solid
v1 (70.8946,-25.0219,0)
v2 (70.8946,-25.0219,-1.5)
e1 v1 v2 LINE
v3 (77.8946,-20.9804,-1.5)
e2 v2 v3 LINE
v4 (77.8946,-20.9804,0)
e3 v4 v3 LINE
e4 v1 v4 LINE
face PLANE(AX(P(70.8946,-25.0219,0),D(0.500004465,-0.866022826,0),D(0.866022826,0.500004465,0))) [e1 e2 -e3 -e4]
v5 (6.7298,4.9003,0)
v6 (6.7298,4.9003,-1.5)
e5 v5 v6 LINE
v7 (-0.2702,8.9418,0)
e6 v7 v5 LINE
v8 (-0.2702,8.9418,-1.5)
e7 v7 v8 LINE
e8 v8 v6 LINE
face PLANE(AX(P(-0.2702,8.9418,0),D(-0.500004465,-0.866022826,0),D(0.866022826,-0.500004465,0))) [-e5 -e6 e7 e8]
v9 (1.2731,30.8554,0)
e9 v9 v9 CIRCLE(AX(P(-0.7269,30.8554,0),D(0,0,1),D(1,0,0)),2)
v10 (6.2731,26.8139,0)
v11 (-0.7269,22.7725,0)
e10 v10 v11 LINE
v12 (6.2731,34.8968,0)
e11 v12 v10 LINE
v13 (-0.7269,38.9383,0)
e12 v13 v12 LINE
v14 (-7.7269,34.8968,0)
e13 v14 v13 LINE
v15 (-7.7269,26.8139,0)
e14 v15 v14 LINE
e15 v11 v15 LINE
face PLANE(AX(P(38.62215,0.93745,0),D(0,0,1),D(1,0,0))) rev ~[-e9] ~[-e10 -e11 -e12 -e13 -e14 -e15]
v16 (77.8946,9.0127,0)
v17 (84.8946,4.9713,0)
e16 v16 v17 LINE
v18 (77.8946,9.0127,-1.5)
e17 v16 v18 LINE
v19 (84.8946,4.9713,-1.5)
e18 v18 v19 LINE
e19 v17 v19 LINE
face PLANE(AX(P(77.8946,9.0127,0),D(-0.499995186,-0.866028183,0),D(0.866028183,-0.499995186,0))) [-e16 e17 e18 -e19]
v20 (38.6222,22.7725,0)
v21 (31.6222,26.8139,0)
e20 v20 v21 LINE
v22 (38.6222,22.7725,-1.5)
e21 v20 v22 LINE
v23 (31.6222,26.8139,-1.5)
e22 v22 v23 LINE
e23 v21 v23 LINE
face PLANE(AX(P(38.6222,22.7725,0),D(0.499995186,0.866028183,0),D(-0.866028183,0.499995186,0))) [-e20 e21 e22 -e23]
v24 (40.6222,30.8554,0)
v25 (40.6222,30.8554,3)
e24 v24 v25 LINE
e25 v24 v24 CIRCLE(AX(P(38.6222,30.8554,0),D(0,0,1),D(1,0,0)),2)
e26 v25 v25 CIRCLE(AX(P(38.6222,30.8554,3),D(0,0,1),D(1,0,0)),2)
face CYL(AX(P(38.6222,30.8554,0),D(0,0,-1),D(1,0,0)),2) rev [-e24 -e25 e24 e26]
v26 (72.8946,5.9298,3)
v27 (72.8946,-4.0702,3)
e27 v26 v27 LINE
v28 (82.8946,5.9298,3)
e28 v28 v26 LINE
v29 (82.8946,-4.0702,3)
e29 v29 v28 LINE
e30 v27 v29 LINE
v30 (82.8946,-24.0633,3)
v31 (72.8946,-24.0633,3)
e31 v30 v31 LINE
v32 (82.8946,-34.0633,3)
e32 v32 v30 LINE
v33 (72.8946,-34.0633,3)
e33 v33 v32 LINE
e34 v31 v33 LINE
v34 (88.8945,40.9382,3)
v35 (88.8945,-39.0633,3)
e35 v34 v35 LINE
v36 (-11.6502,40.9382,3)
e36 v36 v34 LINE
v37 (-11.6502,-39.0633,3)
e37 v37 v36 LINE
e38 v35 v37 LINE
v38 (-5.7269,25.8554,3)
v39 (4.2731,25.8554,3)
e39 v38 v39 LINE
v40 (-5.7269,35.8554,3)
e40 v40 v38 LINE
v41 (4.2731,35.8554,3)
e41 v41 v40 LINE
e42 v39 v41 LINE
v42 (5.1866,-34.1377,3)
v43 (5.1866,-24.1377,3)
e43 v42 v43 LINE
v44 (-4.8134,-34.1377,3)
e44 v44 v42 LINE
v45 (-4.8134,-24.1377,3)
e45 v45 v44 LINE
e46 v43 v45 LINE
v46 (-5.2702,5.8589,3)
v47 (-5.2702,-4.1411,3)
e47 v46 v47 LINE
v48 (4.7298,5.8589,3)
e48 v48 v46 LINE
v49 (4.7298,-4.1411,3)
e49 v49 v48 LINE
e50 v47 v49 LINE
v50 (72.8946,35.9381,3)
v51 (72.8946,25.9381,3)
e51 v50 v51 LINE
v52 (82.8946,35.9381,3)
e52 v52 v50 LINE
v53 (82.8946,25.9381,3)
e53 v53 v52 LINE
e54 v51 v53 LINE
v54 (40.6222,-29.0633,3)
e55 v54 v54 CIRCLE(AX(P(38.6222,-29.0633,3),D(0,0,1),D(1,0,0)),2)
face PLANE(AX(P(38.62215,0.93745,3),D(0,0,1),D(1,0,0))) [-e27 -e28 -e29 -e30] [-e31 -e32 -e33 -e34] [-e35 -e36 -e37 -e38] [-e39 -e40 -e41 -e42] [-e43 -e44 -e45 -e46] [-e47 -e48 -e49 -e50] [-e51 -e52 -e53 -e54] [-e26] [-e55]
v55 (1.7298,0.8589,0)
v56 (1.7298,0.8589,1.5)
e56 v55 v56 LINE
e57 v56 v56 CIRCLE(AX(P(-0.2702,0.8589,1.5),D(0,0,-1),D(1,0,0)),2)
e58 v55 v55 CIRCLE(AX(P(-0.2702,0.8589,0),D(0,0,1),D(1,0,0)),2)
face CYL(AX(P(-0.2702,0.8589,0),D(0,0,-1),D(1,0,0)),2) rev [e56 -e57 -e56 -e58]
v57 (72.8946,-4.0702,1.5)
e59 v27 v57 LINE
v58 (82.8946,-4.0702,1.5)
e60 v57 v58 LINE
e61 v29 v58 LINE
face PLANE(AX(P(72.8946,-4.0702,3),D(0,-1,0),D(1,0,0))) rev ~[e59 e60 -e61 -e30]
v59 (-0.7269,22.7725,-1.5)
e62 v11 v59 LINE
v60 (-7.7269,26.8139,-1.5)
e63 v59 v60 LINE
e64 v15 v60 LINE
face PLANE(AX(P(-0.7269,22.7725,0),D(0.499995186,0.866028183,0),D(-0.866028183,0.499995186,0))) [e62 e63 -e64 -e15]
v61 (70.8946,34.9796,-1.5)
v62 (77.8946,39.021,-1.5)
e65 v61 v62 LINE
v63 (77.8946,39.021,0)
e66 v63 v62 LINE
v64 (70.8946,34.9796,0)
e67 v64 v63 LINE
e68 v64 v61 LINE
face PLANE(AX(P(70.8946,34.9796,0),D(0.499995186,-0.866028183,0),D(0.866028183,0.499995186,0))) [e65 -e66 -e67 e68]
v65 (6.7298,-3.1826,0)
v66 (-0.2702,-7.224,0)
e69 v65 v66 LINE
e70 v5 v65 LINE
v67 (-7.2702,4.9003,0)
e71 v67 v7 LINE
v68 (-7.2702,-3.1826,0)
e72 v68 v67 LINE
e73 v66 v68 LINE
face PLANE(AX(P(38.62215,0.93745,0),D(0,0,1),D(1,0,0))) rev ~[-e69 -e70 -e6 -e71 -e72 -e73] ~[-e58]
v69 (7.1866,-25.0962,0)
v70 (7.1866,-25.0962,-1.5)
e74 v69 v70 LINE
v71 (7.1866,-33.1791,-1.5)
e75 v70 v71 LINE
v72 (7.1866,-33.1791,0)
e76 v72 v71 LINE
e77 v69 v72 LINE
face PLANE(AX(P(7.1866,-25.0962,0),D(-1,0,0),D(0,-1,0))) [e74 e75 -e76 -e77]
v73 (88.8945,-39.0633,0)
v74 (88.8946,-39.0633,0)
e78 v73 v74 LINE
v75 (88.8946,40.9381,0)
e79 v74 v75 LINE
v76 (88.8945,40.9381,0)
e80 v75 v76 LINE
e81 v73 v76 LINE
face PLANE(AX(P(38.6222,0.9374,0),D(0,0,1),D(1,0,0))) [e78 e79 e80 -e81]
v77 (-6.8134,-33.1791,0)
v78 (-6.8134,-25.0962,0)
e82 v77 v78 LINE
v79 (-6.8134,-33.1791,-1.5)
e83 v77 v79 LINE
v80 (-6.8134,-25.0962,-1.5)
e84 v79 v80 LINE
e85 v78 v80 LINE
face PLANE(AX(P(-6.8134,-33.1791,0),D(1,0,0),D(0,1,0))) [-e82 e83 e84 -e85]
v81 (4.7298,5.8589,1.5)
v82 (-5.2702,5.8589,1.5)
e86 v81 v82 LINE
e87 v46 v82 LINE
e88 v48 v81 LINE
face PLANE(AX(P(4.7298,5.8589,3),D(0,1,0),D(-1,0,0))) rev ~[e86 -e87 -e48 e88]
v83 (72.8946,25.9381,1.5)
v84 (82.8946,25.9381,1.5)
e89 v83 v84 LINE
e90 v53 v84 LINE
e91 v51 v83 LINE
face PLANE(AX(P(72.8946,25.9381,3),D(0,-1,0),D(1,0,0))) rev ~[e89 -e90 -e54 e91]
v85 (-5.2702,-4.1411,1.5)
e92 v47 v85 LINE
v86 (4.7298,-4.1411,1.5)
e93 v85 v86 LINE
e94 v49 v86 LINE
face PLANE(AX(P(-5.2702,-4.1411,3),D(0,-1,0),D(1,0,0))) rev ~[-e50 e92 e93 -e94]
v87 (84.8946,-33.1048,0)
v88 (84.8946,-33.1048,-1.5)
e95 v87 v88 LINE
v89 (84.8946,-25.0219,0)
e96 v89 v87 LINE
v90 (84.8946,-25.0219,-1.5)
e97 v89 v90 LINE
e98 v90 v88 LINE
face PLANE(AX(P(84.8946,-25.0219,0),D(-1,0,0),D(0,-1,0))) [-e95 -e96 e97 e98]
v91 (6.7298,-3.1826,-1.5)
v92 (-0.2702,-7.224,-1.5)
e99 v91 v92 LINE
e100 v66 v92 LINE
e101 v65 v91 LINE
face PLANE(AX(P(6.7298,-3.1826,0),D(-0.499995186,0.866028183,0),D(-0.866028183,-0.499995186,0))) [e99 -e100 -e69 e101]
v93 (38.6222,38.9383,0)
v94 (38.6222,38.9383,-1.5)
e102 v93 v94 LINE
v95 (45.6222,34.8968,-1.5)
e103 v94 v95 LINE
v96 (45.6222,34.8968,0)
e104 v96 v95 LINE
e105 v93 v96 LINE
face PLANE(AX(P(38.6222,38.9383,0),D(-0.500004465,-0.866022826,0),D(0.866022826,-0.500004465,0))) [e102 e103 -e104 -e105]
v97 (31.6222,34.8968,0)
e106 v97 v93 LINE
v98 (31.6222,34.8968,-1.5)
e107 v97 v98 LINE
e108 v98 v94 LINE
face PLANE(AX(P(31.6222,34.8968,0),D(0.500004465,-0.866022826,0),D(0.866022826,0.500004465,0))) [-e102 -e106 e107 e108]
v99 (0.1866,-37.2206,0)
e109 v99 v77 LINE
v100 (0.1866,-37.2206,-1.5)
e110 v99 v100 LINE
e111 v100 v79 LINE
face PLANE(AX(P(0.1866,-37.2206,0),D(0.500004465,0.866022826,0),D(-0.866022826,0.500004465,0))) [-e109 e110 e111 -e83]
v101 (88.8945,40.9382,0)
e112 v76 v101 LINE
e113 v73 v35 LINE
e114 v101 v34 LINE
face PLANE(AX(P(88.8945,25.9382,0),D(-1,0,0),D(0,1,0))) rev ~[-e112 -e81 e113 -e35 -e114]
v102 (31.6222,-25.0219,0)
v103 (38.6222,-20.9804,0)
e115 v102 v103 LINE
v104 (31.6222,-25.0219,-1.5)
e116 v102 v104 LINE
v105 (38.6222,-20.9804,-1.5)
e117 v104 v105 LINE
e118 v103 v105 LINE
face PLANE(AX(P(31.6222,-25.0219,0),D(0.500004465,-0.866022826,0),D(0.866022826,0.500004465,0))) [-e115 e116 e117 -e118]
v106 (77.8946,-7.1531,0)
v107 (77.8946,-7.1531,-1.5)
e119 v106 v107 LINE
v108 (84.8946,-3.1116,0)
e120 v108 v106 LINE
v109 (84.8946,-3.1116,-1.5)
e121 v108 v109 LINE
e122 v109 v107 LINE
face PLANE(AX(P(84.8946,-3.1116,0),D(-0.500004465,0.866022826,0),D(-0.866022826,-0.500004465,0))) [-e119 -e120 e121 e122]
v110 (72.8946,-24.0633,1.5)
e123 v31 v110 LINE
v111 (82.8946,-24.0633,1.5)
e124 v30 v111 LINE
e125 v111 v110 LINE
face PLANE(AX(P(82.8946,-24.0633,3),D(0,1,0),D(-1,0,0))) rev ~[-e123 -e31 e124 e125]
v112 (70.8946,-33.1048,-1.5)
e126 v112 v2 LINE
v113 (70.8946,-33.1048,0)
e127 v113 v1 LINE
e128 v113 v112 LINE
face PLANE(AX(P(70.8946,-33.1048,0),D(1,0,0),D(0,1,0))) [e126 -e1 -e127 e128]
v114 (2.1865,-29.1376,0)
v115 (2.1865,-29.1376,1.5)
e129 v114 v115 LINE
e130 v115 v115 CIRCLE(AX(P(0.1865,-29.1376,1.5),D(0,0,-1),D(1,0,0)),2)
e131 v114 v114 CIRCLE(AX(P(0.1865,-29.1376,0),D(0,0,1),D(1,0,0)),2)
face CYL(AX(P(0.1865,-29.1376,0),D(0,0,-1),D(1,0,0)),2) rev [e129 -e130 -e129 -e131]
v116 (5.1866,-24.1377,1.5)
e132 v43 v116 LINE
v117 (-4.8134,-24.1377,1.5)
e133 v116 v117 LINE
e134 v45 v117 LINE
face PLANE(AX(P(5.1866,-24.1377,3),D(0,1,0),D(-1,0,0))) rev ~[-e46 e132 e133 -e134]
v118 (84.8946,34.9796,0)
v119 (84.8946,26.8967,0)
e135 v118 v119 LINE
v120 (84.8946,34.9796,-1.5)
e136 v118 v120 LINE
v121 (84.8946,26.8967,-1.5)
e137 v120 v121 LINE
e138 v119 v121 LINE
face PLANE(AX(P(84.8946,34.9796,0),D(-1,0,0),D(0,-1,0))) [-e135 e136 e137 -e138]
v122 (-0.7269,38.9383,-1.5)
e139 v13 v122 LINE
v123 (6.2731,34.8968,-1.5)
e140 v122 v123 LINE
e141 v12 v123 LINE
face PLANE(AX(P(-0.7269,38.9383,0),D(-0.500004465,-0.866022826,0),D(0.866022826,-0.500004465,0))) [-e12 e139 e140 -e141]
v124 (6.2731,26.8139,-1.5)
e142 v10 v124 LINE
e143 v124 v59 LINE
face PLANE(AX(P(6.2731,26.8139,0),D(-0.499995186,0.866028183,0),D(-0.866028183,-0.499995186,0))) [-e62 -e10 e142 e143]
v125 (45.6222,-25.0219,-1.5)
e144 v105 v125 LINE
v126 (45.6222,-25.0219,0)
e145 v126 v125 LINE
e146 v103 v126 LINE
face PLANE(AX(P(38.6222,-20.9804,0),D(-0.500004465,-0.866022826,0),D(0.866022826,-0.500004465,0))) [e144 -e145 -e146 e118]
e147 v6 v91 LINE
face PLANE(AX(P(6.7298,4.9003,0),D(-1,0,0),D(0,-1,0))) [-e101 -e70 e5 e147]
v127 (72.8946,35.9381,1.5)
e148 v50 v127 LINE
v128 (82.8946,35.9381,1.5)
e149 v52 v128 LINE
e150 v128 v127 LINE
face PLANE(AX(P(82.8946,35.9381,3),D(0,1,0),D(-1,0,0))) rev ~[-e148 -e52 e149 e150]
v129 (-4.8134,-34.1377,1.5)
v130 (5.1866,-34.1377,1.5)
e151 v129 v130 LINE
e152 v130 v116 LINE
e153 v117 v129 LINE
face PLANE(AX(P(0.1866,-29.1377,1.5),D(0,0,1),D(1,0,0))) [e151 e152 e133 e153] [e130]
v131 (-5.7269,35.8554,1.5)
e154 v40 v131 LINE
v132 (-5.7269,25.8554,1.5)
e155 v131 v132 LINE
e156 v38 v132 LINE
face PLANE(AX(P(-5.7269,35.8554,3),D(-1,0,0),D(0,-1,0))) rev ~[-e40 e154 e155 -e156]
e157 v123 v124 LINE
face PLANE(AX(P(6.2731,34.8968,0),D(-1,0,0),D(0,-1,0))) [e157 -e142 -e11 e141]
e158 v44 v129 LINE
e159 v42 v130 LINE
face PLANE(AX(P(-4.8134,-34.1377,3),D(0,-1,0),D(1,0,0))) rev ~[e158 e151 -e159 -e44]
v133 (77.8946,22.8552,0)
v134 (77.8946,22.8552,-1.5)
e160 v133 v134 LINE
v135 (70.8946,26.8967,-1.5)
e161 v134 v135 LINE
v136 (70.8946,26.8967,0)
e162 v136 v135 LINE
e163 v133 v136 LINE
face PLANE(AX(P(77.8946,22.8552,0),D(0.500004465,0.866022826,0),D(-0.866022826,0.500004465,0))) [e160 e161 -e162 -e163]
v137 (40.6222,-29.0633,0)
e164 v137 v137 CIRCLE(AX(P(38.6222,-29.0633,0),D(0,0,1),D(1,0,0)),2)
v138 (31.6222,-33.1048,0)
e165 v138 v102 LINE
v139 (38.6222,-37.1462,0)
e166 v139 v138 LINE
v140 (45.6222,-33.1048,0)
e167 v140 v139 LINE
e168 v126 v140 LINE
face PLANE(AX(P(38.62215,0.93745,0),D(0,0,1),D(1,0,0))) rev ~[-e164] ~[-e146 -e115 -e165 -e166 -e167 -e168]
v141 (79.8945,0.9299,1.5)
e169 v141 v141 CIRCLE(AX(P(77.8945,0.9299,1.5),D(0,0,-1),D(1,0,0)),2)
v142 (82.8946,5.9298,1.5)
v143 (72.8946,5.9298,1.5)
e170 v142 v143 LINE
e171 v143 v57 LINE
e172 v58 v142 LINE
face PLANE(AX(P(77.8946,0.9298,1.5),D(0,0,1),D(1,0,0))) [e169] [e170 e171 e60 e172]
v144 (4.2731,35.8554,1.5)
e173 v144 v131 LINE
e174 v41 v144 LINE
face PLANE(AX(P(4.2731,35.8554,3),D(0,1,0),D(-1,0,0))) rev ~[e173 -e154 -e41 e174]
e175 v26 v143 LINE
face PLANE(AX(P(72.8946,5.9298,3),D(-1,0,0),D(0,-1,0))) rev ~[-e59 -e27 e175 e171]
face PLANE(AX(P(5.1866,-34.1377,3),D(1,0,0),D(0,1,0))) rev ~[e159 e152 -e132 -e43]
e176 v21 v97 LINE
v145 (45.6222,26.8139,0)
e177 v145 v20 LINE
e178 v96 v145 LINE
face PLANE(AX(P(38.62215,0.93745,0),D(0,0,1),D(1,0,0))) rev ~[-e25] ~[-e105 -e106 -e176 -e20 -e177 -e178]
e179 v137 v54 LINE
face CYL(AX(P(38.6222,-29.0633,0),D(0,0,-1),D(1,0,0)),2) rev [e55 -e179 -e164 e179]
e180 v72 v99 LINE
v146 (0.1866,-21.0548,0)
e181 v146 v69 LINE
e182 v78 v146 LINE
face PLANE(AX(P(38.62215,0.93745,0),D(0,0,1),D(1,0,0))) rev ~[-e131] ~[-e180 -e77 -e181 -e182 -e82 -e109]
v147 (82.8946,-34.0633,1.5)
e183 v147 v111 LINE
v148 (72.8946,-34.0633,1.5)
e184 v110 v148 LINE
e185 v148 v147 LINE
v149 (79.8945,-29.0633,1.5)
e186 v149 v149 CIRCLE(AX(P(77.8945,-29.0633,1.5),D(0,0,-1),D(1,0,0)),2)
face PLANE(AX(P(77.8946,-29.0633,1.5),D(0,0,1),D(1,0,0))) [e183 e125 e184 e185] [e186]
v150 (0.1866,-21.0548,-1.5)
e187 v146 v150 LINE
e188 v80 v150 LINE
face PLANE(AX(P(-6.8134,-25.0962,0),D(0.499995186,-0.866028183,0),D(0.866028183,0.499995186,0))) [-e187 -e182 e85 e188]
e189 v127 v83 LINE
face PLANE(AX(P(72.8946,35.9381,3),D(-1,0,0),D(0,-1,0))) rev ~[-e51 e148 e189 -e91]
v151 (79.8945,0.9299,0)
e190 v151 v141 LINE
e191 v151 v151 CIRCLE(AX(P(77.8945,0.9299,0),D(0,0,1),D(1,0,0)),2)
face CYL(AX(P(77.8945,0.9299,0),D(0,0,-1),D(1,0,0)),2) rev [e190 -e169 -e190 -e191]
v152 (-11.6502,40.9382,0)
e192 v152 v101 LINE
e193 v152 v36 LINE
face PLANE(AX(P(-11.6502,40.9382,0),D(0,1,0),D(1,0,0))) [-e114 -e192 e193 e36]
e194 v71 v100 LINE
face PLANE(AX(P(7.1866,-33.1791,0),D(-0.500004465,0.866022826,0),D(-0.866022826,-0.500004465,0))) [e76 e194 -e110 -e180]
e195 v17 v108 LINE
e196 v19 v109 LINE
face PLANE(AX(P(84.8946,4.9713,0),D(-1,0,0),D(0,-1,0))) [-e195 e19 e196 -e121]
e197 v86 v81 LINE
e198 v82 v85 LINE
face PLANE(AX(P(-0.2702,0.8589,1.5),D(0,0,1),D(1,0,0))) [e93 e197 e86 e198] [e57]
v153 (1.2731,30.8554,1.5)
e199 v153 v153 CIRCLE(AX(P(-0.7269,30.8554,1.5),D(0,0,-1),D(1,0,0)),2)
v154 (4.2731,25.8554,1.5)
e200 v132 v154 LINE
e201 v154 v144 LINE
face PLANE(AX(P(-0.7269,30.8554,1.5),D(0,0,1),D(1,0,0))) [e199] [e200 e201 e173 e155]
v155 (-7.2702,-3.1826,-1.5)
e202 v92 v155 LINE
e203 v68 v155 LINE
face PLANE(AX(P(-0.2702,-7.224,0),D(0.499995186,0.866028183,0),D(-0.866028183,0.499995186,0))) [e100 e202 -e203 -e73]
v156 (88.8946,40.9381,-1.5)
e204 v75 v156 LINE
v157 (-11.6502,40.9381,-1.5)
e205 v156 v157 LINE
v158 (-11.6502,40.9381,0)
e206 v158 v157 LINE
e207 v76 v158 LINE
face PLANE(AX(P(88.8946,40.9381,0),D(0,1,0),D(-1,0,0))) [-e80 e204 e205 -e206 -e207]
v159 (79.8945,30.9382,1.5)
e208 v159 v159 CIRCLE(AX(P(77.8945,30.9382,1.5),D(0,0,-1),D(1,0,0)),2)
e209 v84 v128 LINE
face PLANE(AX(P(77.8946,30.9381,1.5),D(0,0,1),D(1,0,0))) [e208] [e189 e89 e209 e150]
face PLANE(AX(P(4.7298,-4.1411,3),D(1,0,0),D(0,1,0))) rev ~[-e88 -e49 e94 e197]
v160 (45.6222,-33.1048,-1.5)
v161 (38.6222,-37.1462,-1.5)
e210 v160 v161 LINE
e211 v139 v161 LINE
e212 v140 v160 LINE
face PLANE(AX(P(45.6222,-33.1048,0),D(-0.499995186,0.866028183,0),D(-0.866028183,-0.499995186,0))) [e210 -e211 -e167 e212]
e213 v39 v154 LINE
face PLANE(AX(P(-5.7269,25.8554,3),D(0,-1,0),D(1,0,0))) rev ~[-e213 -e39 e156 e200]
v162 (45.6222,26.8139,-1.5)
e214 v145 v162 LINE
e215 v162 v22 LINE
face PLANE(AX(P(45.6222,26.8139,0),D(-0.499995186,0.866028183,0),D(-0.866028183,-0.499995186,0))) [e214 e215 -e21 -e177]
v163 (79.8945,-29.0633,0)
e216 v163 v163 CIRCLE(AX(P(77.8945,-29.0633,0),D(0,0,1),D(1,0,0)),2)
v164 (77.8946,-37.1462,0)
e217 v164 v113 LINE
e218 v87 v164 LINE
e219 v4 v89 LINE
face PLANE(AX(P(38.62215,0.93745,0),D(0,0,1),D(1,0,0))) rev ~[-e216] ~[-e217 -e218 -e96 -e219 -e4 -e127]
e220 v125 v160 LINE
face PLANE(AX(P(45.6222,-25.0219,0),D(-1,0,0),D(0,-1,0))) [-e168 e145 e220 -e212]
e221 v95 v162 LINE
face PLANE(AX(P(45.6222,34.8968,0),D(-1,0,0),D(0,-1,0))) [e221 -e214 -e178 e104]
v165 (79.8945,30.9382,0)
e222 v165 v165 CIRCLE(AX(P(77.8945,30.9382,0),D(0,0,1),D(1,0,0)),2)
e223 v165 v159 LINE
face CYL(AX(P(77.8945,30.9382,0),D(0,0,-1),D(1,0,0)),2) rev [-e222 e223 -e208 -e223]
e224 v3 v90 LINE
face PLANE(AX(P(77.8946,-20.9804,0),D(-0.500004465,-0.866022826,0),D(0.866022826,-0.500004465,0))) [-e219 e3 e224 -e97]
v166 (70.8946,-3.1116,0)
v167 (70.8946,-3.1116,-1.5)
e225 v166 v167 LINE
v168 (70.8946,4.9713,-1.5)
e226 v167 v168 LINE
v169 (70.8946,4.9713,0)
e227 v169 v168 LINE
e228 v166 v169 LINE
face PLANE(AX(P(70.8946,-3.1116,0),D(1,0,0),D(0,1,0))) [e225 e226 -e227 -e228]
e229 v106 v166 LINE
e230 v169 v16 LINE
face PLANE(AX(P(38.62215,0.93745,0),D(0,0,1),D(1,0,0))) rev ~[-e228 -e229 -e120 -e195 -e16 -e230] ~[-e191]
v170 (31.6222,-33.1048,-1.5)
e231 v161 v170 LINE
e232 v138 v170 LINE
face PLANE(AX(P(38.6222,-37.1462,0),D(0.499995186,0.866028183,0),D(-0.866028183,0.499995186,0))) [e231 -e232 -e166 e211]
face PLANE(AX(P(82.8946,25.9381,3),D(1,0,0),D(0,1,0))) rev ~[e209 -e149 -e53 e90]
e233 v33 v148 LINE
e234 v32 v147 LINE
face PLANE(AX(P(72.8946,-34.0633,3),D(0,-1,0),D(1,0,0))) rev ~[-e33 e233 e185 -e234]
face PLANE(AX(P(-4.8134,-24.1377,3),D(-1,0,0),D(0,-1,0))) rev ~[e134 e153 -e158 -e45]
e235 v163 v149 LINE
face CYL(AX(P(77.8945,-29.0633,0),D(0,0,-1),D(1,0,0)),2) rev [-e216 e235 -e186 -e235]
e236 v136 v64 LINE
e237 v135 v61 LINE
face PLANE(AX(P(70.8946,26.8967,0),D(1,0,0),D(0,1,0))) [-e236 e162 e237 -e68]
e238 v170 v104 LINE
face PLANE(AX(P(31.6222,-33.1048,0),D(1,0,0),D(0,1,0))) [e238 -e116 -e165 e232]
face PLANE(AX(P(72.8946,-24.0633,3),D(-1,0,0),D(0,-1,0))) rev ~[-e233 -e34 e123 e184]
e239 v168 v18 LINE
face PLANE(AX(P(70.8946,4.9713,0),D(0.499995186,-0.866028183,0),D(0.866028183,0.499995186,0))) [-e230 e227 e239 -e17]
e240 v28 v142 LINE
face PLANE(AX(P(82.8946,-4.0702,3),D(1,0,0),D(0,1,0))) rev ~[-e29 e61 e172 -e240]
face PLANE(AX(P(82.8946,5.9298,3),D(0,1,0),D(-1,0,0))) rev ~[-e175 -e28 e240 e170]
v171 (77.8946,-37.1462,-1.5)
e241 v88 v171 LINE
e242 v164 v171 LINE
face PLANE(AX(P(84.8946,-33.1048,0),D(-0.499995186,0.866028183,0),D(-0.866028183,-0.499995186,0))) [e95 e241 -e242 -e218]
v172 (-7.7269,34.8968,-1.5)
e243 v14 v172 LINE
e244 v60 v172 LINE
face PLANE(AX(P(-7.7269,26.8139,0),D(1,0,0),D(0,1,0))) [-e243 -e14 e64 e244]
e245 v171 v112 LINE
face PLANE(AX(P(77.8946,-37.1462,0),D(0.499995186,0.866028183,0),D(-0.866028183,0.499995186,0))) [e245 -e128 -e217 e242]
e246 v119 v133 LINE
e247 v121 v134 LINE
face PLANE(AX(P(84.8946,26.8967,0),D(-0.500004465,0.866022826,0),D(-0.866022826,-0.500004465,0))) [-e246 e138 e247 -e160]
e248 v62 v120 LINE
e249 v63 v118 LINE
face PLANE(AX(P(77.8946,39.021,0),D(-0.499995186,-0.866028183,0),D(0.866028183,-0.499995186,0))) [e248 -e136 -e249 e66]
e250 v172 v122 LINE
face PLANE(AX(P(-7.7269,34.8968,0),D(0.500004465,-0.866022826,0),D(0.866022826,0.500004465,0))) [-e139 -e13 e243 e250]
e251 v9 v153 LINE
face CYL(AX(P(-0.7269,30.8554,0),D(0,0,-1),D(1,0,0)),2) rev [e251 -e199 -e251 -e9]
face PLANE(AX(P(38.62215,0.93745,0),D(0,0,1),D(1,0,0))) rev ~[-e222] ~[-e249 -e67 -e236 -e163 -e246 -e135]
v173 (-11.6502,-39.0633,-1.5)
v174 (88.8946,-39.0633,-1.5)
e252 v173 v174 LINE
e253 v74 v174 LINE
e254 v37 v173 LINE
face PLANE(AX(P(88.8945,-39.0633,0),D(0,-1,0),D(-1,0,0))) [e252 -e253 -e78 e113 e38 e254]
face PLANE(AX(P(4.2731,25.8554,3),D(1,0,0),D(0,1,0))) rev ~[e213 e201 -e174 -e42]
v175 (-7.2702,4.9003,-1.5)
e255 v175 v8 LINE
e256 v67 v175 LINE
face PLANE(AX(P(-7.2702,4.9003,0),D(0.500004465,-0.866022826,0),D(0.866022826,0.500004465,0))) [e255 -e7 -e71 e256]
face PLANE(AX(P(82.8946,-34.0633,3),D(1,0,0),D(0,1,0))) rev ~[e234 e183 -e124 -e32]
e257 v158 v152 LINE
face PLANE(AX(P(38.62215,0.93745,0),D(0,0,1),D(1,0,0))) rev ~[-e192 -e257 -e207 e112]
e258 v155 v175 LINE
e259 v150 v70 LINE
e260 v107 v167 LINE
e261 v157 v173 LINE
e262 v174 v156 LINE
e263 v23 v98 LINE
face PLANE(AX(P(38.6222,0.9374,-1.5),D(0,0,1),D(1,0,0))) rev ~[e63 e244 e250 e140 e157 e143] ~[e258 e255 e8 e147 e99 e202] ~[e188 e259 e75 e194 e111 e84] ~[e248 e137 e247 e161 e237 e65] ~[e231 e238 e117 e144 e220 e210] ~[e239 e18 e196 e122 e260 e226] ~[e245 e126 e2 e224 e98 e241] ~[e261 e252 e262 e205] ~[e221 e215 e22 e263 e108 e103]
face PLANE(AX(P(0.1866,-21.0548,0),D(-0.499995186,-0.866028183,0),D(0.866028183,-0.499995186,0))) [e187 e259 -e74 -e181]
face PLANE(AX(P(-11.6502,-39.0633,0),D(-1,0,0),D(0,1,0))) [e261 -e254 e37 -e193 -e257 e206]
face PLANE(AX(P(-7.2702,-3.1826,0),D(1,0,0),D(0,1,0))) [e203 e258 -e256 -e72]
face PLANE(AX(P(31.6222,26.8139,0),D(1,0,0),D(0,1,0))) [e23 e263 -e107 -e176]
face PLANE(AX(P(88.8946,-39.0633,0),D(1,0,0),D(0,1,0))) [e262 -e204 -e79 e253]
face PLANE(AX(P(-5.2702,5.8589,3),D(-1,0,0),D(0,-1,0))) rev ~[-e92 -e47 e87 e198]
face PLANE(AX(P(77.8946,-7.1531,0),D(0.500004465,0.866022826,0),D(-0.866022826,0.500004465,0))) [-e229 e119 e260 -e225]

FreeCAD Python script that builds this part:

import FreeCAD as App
import Part
import Sketcher
from FreeCAD import Vector
Q = App.Units.Quantity

doc = App.newDocument("Part")
body = doc.addObject("PartDesign::Body", "Body")

# Sketch on XY plane
sketch1 = body.newObject("Sketcher::SketchObject", "Sketch")
sketch1.AttachmentSupport = (doc.getObject("XY_Plane"), [""])
sketch1.MapMode = "FlatFace"
sketch1.addGeometry([
    Part.LineSegment(Vector(88.8945, -39.0633, 0), Vector(88.8945, 40.9382, 0)),  # 0
    Part.LineSegment(Vector(88.8945, 40.9382, 0), Vector(-11.6502, 40.9382, 0)),  # 1
    Part.LineSegment(Vector(-11.6502, 40.9382, 0), Vector(-11.6502, -39.0633, 0)),  # 2
    Part.LineSegment(Vector(-11.6502, -39.0633, 0), Vector(88.8945, -39.0633, 0)),  # 3
    Part.Circle(Vector(0.1865, -29.1376, 0), Vector(0, 0, 1), 2),  # 4
    Part.Circle(Vector(-0.2702, 0.8589, 0), Vector(0, 0, 1), 2),  # 5
    Part.Circle(Vector(38.6222, -29.0633, 0), Vector(0, 0, 1), 2),  # 6
    Part.Circle(Vector(77.8945, -29.0633, 0), Vector(0, 0, 1), 2),  # 7
    Part.Circle(Vector(77.8945, 0.9299, 0), Vector(0, 0, 1), 2),  # 8
    Part.Circle(Vector(-0.7269, 30.8554, 0), Vector(0, 0, 1), 2),  # 9
    Part.Circle(Vector(38.6222, 30.8554, 0), Vector(0, 0, 1), 2),  # 10
    Part.Circle(Vector(77.8945, 30.9382, 0), Vector(0, 0, 1), 2),  # 11
], False)
sketch1.addConstraint([
    Sketcher.Constraint("Coincident", 0, 2, 1, 1),
    Sketcher.Constraint("Coincident", 1, 2, 2, 1),
    Sketcher.Constraint("Coincident", 2, 2, 3, 1),
    Sketcher.Constraint("Coincident", 3, 2, 0, 1),
    Sketcher.Constraint("Vertical", 0),
    Sketcher.Constraint("Horizontal", 1),
    Sketcher.Constraint("Vertical", 2),
    Sketcher.Constraint("Horizontal", 3),
    Sketcher.Constraint("Equal", 4, 5),
    Sketcher.Constraint("Equal", 5, 6),
    Sketcher.Constraint("Equal", 6, 7),
    Sketcher.Constraint("Equal", 7, 8),
    Sketcher.Constraint("Equal", 8, 9),
    Sketcher.Constraint("Equal", 9, 10),
    Sketcher.Constraint("Equal", 10, 11),
    Sketcher.Constraint("Horizontal", 6, 3, 7, 3),
    Sketcher.Constraint("Horizontal", 9, 3, 10, 3),
    Sketcher.Constraint("Vertical", 7, 3, 8, 3),
    Sketcher.Constraint("Vertical", 6, 3, 10, 3),
    Sketcher.Constraint("Vertical", 8, 3, 11, 3),
    Sketcher.Constraint("Diameter", 4, 4.0),
    Sketcher.Constraint("DistanceX", 11, 3, 0, 2, 11.0),
    Sketcher.Constraint("DistanceY", 11, 3, 0, 2, 10.0),
    Sketcher.Constraint("DistanceY", 2, 2, 6, 3, 10.0),
    Sketcher.Constraint("DistanceY", -1, 1, 8, 3, 0.93),
    Sketcher.Constraint("DistanceX", 1, 2, 5, 3, 11.38),
    Sketcher.Constraint("DistanceX", 1, 2, 1, 1, 100.5447),
    Sketcher.Constraint("DistanceY", 0, 1, 0, 2, 80.0015),
    Sketcher.Constraint("DistanceY", -1, 1, 5, 3, 0.859),
    Sketcher.Constraint("DistanceX", 9, 3, -1, 1, 0.727),
    Sketcher.Constraint("DistanceX", 4, 3, 7, 3, 77.708),
    Sketcher.Constraint("DistanceY", 4, 3, 9, 3, 59.993),
    Sketcher.Constraint("DistanceX", 9, 3, 6, 3, 39.349),
    Sketcher.Constraint("DistanceX", -1, 1, 4, 3, 0.1865),
    Sketcher.Constraint("DistanceY", 4, 3, -1, 1, 29.1376),
    Sketcher.Constraint("DistanceY", 6, 3, -1, 1, 29.0633),
])
pad1 = body.newObject("PartDesign::Pad", "Pad")
pad1.Profile = sketch1
pad1.Length = 3

# Sketch on XY plane
sketch2 = body.newObject("Sketcher::SketchObject", "Sketch001")
sketch2.AttachmentSupport = (doc.getObject("XY_Plane"), [""])
sketch2.MapMode = "FlatFace"
sketch2.AttachmentOffset = App.Placement(Vector(0, 0, 3), App.Rotation())
sketch2.addGeometry([
    Part.LineSegment(Vector(-5.7269, 35.8554, 0), Vector(-5.7269, 25.8554, 0)),  # 0
    Part.LineSegment(Vector(-5.7269, 25.8554, 0), Vector(4.2731, 25.8554, 0)),  # 1
    Part.LineSegment(Vector(4.2731, 25.8554, 0), Vector(4.2731, 35.8554, 0)),  # 2
    Part.LineSegment(Vector(4.2731, 35.8554, 0), Vector(-5.7269, 35.8554, 0)),  # 3
    Part.LineSegment(Vector(72.8946, 35.9381, 0), Vector(72.8946, 25.9381, 0)),  # 4
    Part.LineSegment(Vector(72.8946, 25.9381, 0), Vector(82.8946, 25.9381, 0)),  # 5
    Part.LineSegment(Vector(82.8946, 25.9381, 0), Vector(82.8946, 35.9381, 0)),  # 6
    Part.LineSegment(Vector(82.8946, 35.9381, 0), Vector(72.8946, 35.9381, 0)),  # 7
    Part.LineSegment(Vector(72.8946, 5.9298, 0), Vector(72.8946, -4.0702, 0)),  # 8
    Part.LineSegment(Vector(72.8946, -4.0702, 0), Vector(82.8946, -4.0702, 0)),  # 9
    Part.LineSegment(Vector(82.8946, -4.0702, 0), Vector(82.8946, 5.9298, 0)),  # 10
    Part.LineSegment(Vector(82.8946, 5.9298, 0), Vector(72.8946, 5.9298, 0)),  # 11
    Part.LineSegment(Vector(72.8946, -24.0633, 0), Vector(72.8946, -34.0633, 0)),  # 12
    Part.LineSegment(Vector(72.8946, -34.0633, 0), Vector(82.8946, -34.0633, 0)),  # 13
    Part.LineSegment(Vector(82.8946, -34.0633, 0), Vector(82.8946, -24.0633, 0)),  # 14
    Part.LineSegment(Vector(82.8946, -24.0633, 0), Vector(72.8946, -24.0633, 0)),  # 15
    Part.LineSegment(Vector(-4.8134, -24.1377, 0), Vector(-4.8134, -34.1377, 0)),  # 16
    Part.LineSegment(Vector(-4.8134, -34.1377, 0), Vector(5.1866, -34.1377, 0)),  # 17
    Part.LineSegment(Vector(5.1866, -34.1377, 0), Vector(5.1866, -24.1377, 0)),  # 18
    Part.LineSegment(Vector(5.1866, -24.1377, 0), Vector(-4.8134, -24.1377, 0)),  # 19
    Part.LineSegment(Vector(-5.2702, 5.8589, 0), Vector(-5.2702, -4.1411, 0)),  # 20
    Part.LineSegment(Vector(-5.2702, -4.1411, 0), Vector(4.7298, -4.1411, 0)),  # 21
    Part.LineSegment(Vector(4.7298, -4.1411, 0), Vector(4.7298, 5.8589, 0)),  # 22
    Part.LineSegment(Vector(4.7298, 5.8589, 0), Vector(-5.2702, 5.8589, 0)),  # 23
], False)
sketch2.addConstraint([
    Sketcher.Constraint("Coincident", 0, 2, 1, 1),
    Sketcher.Constraint("Coincident", 1, 2, 2, 1),
    Sketcher.Constraint("Coincident", 2, 2, 3, 1),
    Sketcher.Constraint("Coincident", 3, 2, 0, 1),
    Sketcher.Constraint("Coincident", 4, 2, 5, 1),
    Sketcher.Constraint("Coincident", 5, 2, 6, 1),
    Sketcher.Constraint("Coincident", 6, 2, 7, 1),
    Sketcher.Constraint("Coincident", 7, 2, 4, 1),
    Sketcher.Constraint("Coincident", 8, 2, 9, 1),
    Sketcher.Constraint("Coincident", 9, 2, 10, 1),
    Sketcher.Constraint("Coincident", 10, 2, 11, 1),
    Sketcher.Constraint("Coincident", 11, 2, 8, 1),
    Sketcher.Constraint("Coincident", 12, 2, 13, 1),
    Sketcher.Constraint("Coincident", 13, 2, 14, 1),
    Sketcher.Constraint("Coincident", 14, 2, 15, 1),
    Sketcher.Constraint("Coincident", 15, 2, 12, 1),
    Sketcher.Constraint("Coincident", 16, 2, 17, 1),
    Sketcher.Constraint("Coincident", 17, 2, 18, 1),
    Sketcher.Constraint("Coincident", 18, 2, 19, 1),
    Sketcher.Constraint("Coincident", 19, 2, 16, 1),
    Sketcher.Constraint("Coincident", 20, 2, 21, 1),
    Sketcher.Constraint("Coincident", 21, 2, 22, 1),
    Sketcher.Constraint("Coincident", 22, 2, 23, 1),
    Sketcher.Constraint("Coincident", 23, 2, 20, 1),
    Sketcher.Constraint("Vertical", 0),
    Sketcher.Constraint("Horizontal", 1),
    Sketcher.Constraint("Vertical", 2),
    Sketcher.Constraint("Horizontal", 3),
    Sketcher.Constraint("Vertical", 4),
    Sketcher.Constraint("Horizontal", 5),
    Sketcher.Constraint("Vertical", 6),
    Sketcher.Constraint("Horizontal", 7),
    Sketcher.Constraint("Vertical", 8),
    Sketcher.Constraint("Horizontal", 9),
    Sketcher.Constraint("Vertical", 10),
    Sketcher.Constraint("Horizontal", 11),
    Sketcher.Constraint("Vertical", 12),
    Sketcher.Constraint("Horizontal", 13),
    Sketcher.Constraint("Vertical", 14),
    Sketcher.Constraint("Horizontal", 15),
    Sketcher.Constraint("Vertical", 16),
    Sketcher.Constraint("Horizontal", 17),
    Sketcher.Constraint("Vertical", 18),
    Sketcher.Constraint("Horizontal", 19),
    Sketcher.Constraint("Vertical", 20),
    Sketcher.Constraint("Horizontal", 21),
    Sketcher.Constraint("Vertical", 22),
    Sketcher.Constraint("Horizontal", 23),
    Sketcher.Constraint("Vertical", 7, 2, 8, 2),
    Sketcher.Constraint("Vertical", 6, 2, 9, 2),
    Sketcher.Constraint("Vertical", 11, 2, 12, 2),
    Sketcher.Constraint("Vertical", 10, 2, 13, 2),
    Sketcher.Constraint("Equal", 3, 5),
    Sketcher.Constraint("Equal", 15, 17),
    Sketcher.Constraint("Equal", 19, 21),
    Sketcher.Constraint("Equal", 23, 0),
    Sketcher.Constraint("Equal", 2, 4),
    Sketcher.Constraint("Equal", 6, 8),
    Sketcher.Constraint("Equal", 10, 12),
    Sketcher.Constraint("Equal", 14, 16),
    Sketcher.Constraint("Equal", 18, 20),
    Sketcher.Constraint("DistanceX", 1, 1, 1, 2, 10.0),
    Sketcher.Constraint("DistanceX", 0, 2, -1, 1, 5.727),
    Sketcher.Constraint("DistanceY", -1, 1, 4, 2, 25.938),
    Sketcher.Constraint("DistanceY", 20, 2, -1, 1, 4.141),
    Sketcher.Constraint("DistanceY", 12, 2, 8, 2, 29.993),
    Sketcher.Constraint("DistanceY", 16, 2, 0, 2, 59.993),
    Sketcher.Constraint("DistanceX", 16, 2, 12, 2, 77.708),
    Sketcher.Constraint("DistanceY", -1, 1, 0, 2, 25.8554),
    Sketcher.Constraint("DistanceX", -1, 1, 4, 2, 72.8946),
    Sketcher.Constraint("DistanceY", 8, 2, -1, 1, 4.0702),
    Sketcher.Constraint("DistanceX", 20, 2, -1, 1, 5.2702),
])
pocket1 = body.newObject("PartDesign::Pocket", "Pocket")
pocket1.Profile = sketch2
pocket1.Length = 1.5

# Sketch on XY plane
sketch3 = body.newObject("Sketcher::SketchObject", "Sketch002")
sketch3.AttachmentSupport = (doc.getObject("XY_Plane"), [""])
sketch3.MapMode = "FlatFace"
sketch3.addGeometry([
    Part.LineSegment(Vector(88.8946, -39.0633, 0), Vector(-11.6502, -39.0633, 0)),  # 0
    Part.LineSegment(Vector(-11.6502, -39.0633, 0), Vector(-11.6502, 40.9381, 0)),  # 1
    Part.LineSegment(Vector(-11.6502, 40.9381, 0), Vector(88.8946, 40.9381, 0)),  # 2
    Part.LineSegment(Vector(88.8946, 40.9381, 0), Vector(88.8946, -39.0633, 0)),  # 3
    Part.LineSegment(Vector(-0.7269, 22.7725, 0), Vector(6.2731, 26.8139, 0)),  # 4
    Part.LineSegment(Vector(6.2731, 26.8139, 0), Vector(6.2731, 34.8968, 0)),  # 5
    Part.LineSegment(Vector(6.2731, 34.8968, 0), Vector(-0.7269, 38.9383, 0)),  # 6
    Part.LineSegment(Vector(-0.7269, 38.9383, 0), Vector(-7.7269, 34.8968, 0)),  # 7
    Part.LineSegment(Vector(-7.7269, 34.8968, 0), Vector(-7.7269, 26.8139, 0)),  # 8
    Part.LineSegment(Vector(-7.7269, 26.8139, 0), Vector(-0.7269, 22.7725, 0)),  # 9
    Part.LineSegment(Vector(38.6222, 22.7725, 0), Vector(45.6222, 26.8139, 0)),  # 10
    Part.LineSegment(Vector(45.6222, 26.8139, 0), Vector(45.6222, 34.8968, 0)),  # 11
    Part.LineSegment(Vector(45.6222, 34.8968, 0), Vector(38.6222, 38.9383, 0)),  # 12
    Part.LineSegment(Vector(38.6222, 38.9383, 0), Vector(31.6222, 34.8968, 0)),  # 13
    Part.LineSegment(Vector(31.6222, 34.8968, 0), Vector(31.6222, 26.8139, 0)),  # 14
    Part.LineSegment(Vector(31.6222, 26.8139, 0), Vector(38.6222, 22.7725, 0)),  # 15
    Part.LineSegment(Vector(77.8946, 22.8552, 0), Vector(84.8946, 26.8967, 0)),  # 16
    Part.LineSegment(Vector(84.8946, 26.8967, 0), Vector(84.8946, 34.9796, 0)),  # 17
    Part.LineSegment(Vector(84.8946, 34.9796, 0), Vector(77.8946, 39.021, 0)),  # 18
    Part.LineSegment(Vector(77.8946, 39.021, 0), Vector(70.8946, 34.9796, 0)),  # 19
    Part.LineSegment(Vector(70.8946, 34.9796, 0), Vector(70.8946, 26.8967, 0)),  # 20
    Part.LineSegment(Vector(70.8946, 26.8967, 0), Vector(77.8946, 22.8552, 0)),  # 21
    Part.LineSegment(Vector(-0.2702, 8.9418, 0), Vector(-7.2702, 4.9003, 0)),  # 22
    Part.LineSegment(Vector(-7.2702, 4.9003, 0), Vector(-7.2702, -3.1826, 0)),  # 23
    Part.LineSegment(Vector(-7.2702, -3.1826, 0), Vector(-0.2702, -7.224, 0)),  # 24
    Part.LineSegment(Vector(-0.2702, -7.224, 0), Vector(6.7298, -3.1826, 0)),  # 25
    Part.LineSegment(Vector(6.7298, -3.1826, 0), Vector(6.7298, 4.9003, 0)),  # 26
    Part.LineSegment(Vector(6.7298, 4.9003, 0), Vector(-0.2702, 8.9418, 0)),  # 27
    Part.LineSegment(Vector(0.1866, -21.0548, 0), Vector(-6.8134, -25.0962, 0)),  # 28
    Part.LineSegment(Vector(-6.8134, -25.0962, 0), Vector(-6.8134, -33.1791, 0)),  # 29
    Part.LineSegment(Vector(-6.8134, -33.1791, 0), Vector(0.1866, -37.2206, 0)),  # 30
    Part.LineSegment(Vector(0.1866, -37.2206, 0), Vector(7.1866, -33.1791, 0)),  # 31
    Part.LineSegment(Vector(7.1866, -33.1791, 0), Vector(7.1866, -25.0962, 0)),  # 32
    Part.LineSegment(Vector(7.1866, -25.0962, 0), Vector(0.1866, -21.0548, 0)),  # 33
    Part.LineSegment(Vector(77.8946, -7.1531, 0), Vector(84.8946, -3.1116, 0)),  # 34
    Part.LineSegment(Vector(84.8946, -3.1116, 0), Vector(84.8946, 4.9713, 0)),  # 35
    Part.LineSegment(Vector(84.8946, 4.9713, 0), Vector(77.8946, 9.0127, 0)),  # 36
    Part.LineSegment(Vector(77.8946, 9.0127, 0), Vector(70.8946, 4.9713, 0)),  # 37
    Part.LineSegment(Vector(70.8946, 4.9713, 0), Vector(70.8946, -3.1116, 0)),  # 38
    Part.LineSegment(Vector(70.8946, -3.1116, 0), Vector(77.8946, -7.1531, 0)),  # 39
    Part.LineSegment(Vector(38.6222, -37.1462, 0), Vector(45.6222, -33.1048, 0)),  # 40
    Part.LineSegment(Vector(45.6222, -33.1048, 0), Vector(45.6222, -25.0219, 0)),  # 41
    Part.LineSegment(Vector(45.6222, -25.0219, 0), Vector(38.6222, -20.9804, 0)),  # 42
    Part.LineSegment(Vector(38.6222, -20.9804, 0), Vector(31.6222, -25.0219, 0)),  # 43
    Part.LineSegment(Vector(31.6222, -25.0219, 0), Vector(31.6222, -33.1048, 0)),  # 44
    Part.LineSegment(Vector(31.6222, -33.1048, 0), Vector(38.6222, -37.1462, 0)),  # 45
    Part.LineSegment(Vector(77.8946, -37.1462, 0), Vector(84.8946, -33.1048, 0)),  # 46
    Part.LineSegment(Vector(84.8946, -33.1048, 0), Vector(84.8946, -25.0219, 0)),  # 47
    Part.LineSegment(Vector(84.8946, -25.0219, 0), Vector(77.8946, -20.9804, 0)),  # 48
    Part.LineSegment(Vector(77.8946, -20.9804, 0), Vector(70.8946, -25.0219, 0)),  # 49
    Part.LineSegment(Vector(70.8946, -25.0219, 0), Vector(70.8946, -33.1048, 0)),  # 50
    Part.LineSegment(Vector(70.8946, -33.1048, 0), Vector(77.8946, -37.1462, 0)),  # 51
], False)
sketch3.addConstraint([
    Sketcher.Constraint("Coincident", 0, 2, 1, 1),
    Sketcher.Constraint("Coincident", 1, 2, 2, 1),
    Sketcher.Constraint("Coincident", 2, 2, 3, 1),
    Sketcher.Constraint("Coincident", 3, 2, 0, 1),
    Sketcher.Constraint("Coincident", 4, 2, 5, 1),
    Sketcher.Constraint("Coincident", 5, 2, 6, 1),
    Sketcher.Constraint("Coincident", 6, 2, 7, 1),
    Sketcher.Constraint("Coincident", 7, 2, 8, 1),
    Sketcher.Constraint("Coincident", 8, 2, 9, 1),
    Sketcher.Constraint("Coincident", 9, 2, 4, 1),
    Sketcher.Constraint("Coincident", 10, 2, 11, 1),
    Sketcher.Constraint("Coincident", 11, 2, 12, 1),
    Sketcher.Constraint("Coincident", 12, 2, 13, 1),
    Sketcher.Constraint("Coincident", 13, 2, 14, 1),
    Sketcher.Constraint("Coincident", 14, 2, 15, 1),
    Sketcher.Constraint("Coincident", 15, 2, 10, 1),
    Sketcher.Constraint("Coincident", 16, 2, 17, 1),
    Sketcher.Constraint("Coincident", 17, 2, 18, 1),
    Sketcher.Constraint("Coincident", 18, 2, 19, 1),
    Sketcher.Constraint("Coincident", 19, 2, 20, 1),
    Sketcher.Constraint("Coincident", 20, 2, 21, 1),
    Sketcher.Constraint("Coincident", 21, 2, 16, 1),
    Sketcher.Constraint("Coincident", 22, 2, 23, 1),
    Sketcher.Constraint("Coincident", 23, 2, 24, 1),
    Sketcher.Constraint("Coincident", 24, 2, 25, 1),
    Sketcher.Constraint("Coincident", 25, 2, 26, 1),
    Sketcher.Constraint("Coincident", 26, 2, 27, 1),
    Sketcher.Constraint("Coincident", 27, 2, 22, 1),
    Sketcher.Constraint("Coincident", 28, 2, 29, 1),
    Sketcher.Constraint("Coincident", 29, 2, 30, 1),
    Sketcher.Constraint("Coincident", 30, 2, 31, 1),
    Sketcher.Constraint("Coincident", 31, 2, 32, 1),
    Sketcher.Constraint("Coincident", 32, 2, 33, 1),
    Sketcher.Constraint("Coincident", 33, 2, 28, 1),
    Sketcher.Constraint("Coincident", 34, 2, 35, 1),
    Sketcher.Constraint("Coincident", 35, 2, 36, 1),
    Sketcher.Constraint("Coincident", 36, 2, 37, 1),
    Sketcher.Constraint("Coincident", 37, 2, 38, 1),
    Sketcher.Constraint("Coincident", 38, 2, 39, 1),
    Sketcher.Constraint("Coincident", 39, 2, 34, 1),
    Sketcher.Constraint("Coincident", 40, 2, 41, 1),
    Sketcher.Constraint("Coincident", 41, 2, 42, 1),
    Sketcher.Constraint("Coincident", 42, 2, 43, 1),
    Sketcher.Constraint("Coincident", 43, 2, 44, 1),
    Sketcher.Constraint("Coincident", 44, 2, 45, 1),
    Sketcher.Constraint("Coincident", 45, 2, 40, 1),
    Sketcher.Constraint("Coincident", 46, 2, 47, 1),
    Sketcher.Constraint("Coincident", 47, 2, 48, 1),
    Sketcher.Constraint("Coincident", 48, 2, 49, 1),
    Sketcher.Constraint("Coincident", 49, 2, 50, 1),
    Sketcher.Constraint("Coincident", 50, 2, 51, 1),
    Sketcher.Constraint("Coincident", 51, 2, 46, 1),
    Sketcher.Constraint("Horizontal", 0),
    Sketcher.Constraint("Vertical", 1),
    Sketcher.Constraint("Horizontal", 2),
    Sketcher.Constraint("Vertical", 3),
    Sketcher.Constraint("Vertical", 5),
    Sketcher.Constraint("Vertical", 8),
    Sketcher.Constraint("Vertical", 11),
    Sketcher.Constraint("Vertical", 14),
    Sketcher.Constraint("Vertical", 17),
    Sketcher.Constraint("Vertical", 20),
    Sketcher.Constraint("Vertical", 23),
    Sketcher.Constraint("Vertical", 26),
    Sketcher.Constraint("Vertical", 29),
    Sketcher.Constraint("Vertical", 32),
    Sketcher.Constraint("Vertical", 35),
    Sketcher.Constraint("Vertical", 38),
    Sketcher.Constraint("Vertical", 41),
    Sketcher.Constraint("Vertical", 44),
    Sketcher.Constraint("Vertical", 47),
    Sketcher.Constraint("Vertical", 50),
    Sketcher.Constraint("Parallel", 4, 7),
    Sketcher.Constraint("Parallel", 6, 9),
    Sketcher.Constraint("Parallel", 7, 10),
    Sketcher.Constraint("Parallel", 9, 12),
    Sketcher.Constraint("Parallel", 10, 13),
    Sketcher.Constraint("Parallel", 12, 15),
    Sketcher.Constraint("Parallel", 13, 16),
    Sketcher.Constraint("Parallel", 15, 18),
    Sketcher.Constraint("Parallel", 16, 19),
    Sketcher.Constraint("Parallel", 18, 21),
    Sketcher.Constraint("Parallel", 19, 22),
    Sketcher.Constraint("Parallel", 21, 24),
    Sketcher.Constraint("Parallel", 22, 25),
    Sketcher.Constraint("Parallel", 24, 27),
    Sketcher.Constraint("Parallel", 25, 28),
    Sketcher.Constraint("Parallel", 27, 30),
    Sketcher.Constraint("Parallel", 28, 31),
    Sketcher.Constraint("Parallel", 30, 33),
    Sketcher.Constraint("Parallel", 31, 34),
    Sketcher.Constraint("Parallel", 33, 36),
    Sketcher.Constraint("Parallel", 34, 37),
    Sketcher.Constraint("Parallel", 36, 39),
    Sketcher.Constraint("Parallel", 37, 40),
    Sketcher.Constraint("Parallel", 39, 42),
    Sketcher.Constraint("Parallel", 40, 43),
    Sketcher.Constraint("Parallel", 42, 45),
    Sketcher.Constraint("Parallel", 43, 46),
    Sketcher.Constraint("Parallel", 45, 48),
    Sketcher.Constraint("Parallel", 46, 49),
    Sketcher.Constraint("Parallel", 48, 51),
    Sketcher.Constraint("Horizontal", 5, 2, 7, 2),
    Sketcher.Constraint("Horizontal", 4, 2, 8, 2),
    Sketcher.Constraint("Horizontal", 8, 2, 10, 2),
    Sketcher.Constraint("Horizontal", 7, 2, 11, 2),
    Sketcher.Constraint("Horizontal", 6, 2, 12, 2),
    Sketcher.Constraint("Horizontal", 11, 2, 13, 2),
    Sketcher.Constraint("Horizontal", 10, 2, 14, 2),
    Sketcher.Constraint("Horizontal", 17, 2, 19, 2),
    Sketcher.Constraint("Horizontal", 16, 2, 20, 2),
    Sketcher.Constraint("Horizontal", 23, 2, 25, 2),
    Sketcher.Constraint("Horizontal", 22, 2, 26, 2),
    Sketcher.Constraint("Horizontal", 29, 2, 31, 2),
    Sketcher.Constraint("Horizontal", 28, 2, 32, 2),
    Sketcher.Constraint("Horizontal", 35, 2, 37, 2),
    Sketcher.Constraint("Horizontal", 34, 2, 38, 2),
    Sketcher.Constraint("Horizontal", 41, 2, 43, 2),
    Sketcher.Constraint("Horizontal", 40, 2, 44, 2),
    Sketcher.Constraint("Horizontal", 44, 2, 46, 2),
    Sketcher.Constraint("Horizontal", 43, 2, 47, 2),
    Sketcher.Constraint("Horizontal", 42, 2, 48, 2),
    Sketcher.Constraint("Horizontal", 47, 2, 49, 2),
    Sketcher.Constraint("Horizontal", 46, 2, 50, 2),
    Sketcher.Constraint("Vertical", 6, 2, 9, 2),
    Sketcher.Constraint("Vertical", 17, 2, 34, 2),
    Sketcher.Constraint("Vertical", 21, 2, 36, 2),
    Sketcher.Constraint("Vertical", 11, 2, 40, 2),
    Sketcher.Constraint("Vertical", 15, 2, 42, 2),
    Sketcher.Constraint("Vertical", 35, 2, 46, 2),
    Sketcher.Constraint("Vertical", 39, 2, 48, 2),
    Sketcher.Constraint("Equal", 14, 17),
    Sketcher.Constraint("Equal", 20, 23),
    Sketcher.Constraint("Equal", 26, 29),
    Sketcher.Constraint("Equal", 32, 35),
    Sketcher.Constraint("Equal", 38, 41),
    Sketcher.Constraint("Equal", 21, 22),
    Sketcher.Constraint("Equal", 27, 28),
    Sketcher.Constraint("Angle", 4, Q("29.9997 deg")),
    Sketcher.Constraint("DistanceX", 6, 2, 5, 2, 7.0),
    Sketcher.Constraint("DistanceX", 16, 2, 2, 2, 4.0),
    Sketcher.Constraint("DistanceY", 16, 2, 11, 2, 8.0),
    Sketcher.Constraint("DistanceY", 5, 1, 5, 2, 8.083),
    Sketcher.Constraint("DistanceY", 0, 2, 5, 2, 73.96),
    Sketcher.Constraint("DistanceX", 0, 2, 23, 2, 4.38),
    Sketcher.Constraint("DistanceX", 0, 2, 0, 1, 100.5448),
    Sketcher.Constraint("DistanceY", 1, 1, 1, 2, 80.0014),
    Sketcher.Constraint("DistanceY", -1, 1, 1, 2, 40.938),
    Sketcher.Constraint("DistanceX", -1, 1, 4, 2, 6.273),
    Sketcher.Constraint("DistanceY", 24, 2, -1, 1, 7.224),
    Sketcher.Constraint("DistanceY", 29, 2, -1, 1, 33.179),
    Sketcher.Constraint("DistanceY", 39, 2, -1, 1, 7.153),
    Sketcher.Constraint("DistanceY", 41, 2, -1, 1, 25.022),
    Sketcher.Constraint("DistanceX", 4, 2, 10, 2, 39.349),
    Sketcher.Constraint("DistanceX", 0, 2, -1, 1, 11.6502),
    Sketcher.Constraint("DistanceX", 28, 2, -1, 1, 6.8134),
])
pad2 = body.newObject("PartDesign::Pad", "Pad001")
pad2.Profile = sketch3
pad2.Length = 1.5
pad2.Reversed = True

doc.recompute()
